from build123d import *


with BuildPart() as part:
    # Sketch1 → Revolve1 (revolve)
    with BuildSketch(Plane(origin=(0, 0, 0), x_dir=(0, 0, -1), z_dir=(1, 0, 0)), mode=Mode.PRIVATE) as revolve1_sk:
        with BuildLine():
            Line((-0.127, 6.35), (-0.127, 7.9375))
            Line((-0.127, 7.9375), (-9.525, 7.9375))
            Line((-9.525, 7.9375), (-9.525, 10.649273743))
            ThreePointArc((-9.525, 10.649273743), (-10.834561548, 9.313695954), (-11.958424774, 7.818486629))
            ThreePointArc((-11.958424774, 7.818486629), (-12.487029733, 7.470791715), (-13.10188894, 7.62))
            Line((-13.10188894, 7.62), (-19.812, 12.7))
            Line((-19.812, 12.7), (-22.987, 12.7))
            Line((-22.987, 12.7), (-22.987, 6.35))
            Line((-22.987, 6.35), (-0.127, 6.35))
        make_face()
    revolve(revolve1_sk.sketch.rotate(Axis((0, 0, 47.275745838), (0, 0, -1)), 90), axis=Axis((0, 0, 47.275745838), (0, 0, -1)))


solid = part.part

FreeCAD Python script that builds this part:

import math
import FreeCAD as App
import Part
import Sketcher
from FreeCAD import Vector
Q = App.Units.Quantity

doc = App.newDocument("Part")
body = doc.addObject("PartDesign::Body", "Body")

# Sketch on YZ plane
sketch1 = doc.addObject("Sketcher::SketchObject", "Sketch")
body.addObject(sketch1)
sketch1.AttachmentSupport = (doc.YZ_Plane, [""])
sketch1.MapMode = "FlatFace"
sketch1.addGeometry(Part.LineSegment(Vector(6.3, 0.1, 0), Vector(7.9, 0.1, 0)), False)
sketch1.addGeometry(Part.LineSegment(Vector(7.9, 0.1, 0), Vector(7.9, 9.5, 0)), False)
sketch1.addGeometry(Part.LineSegment(Vector(7.9, 9.5, 0), Vector(10.6, 9.5, 0)), False)
sketch1.addGeometry(Part.ArcOfCircle(Part.Circle(Vector(0, 0, 0), Vector(0, 0, 1), 14.3), math.radians(41.81), math.radians(56.82)), False)
sketch1.addGeometry(Part.ArcOfCircle(Part.Circle(Vector(8.3, 12.6, 0), Vector(0, 0, 1), 0.8), math.radians(143), math.radians(237)), False)
sketch1.addGeometry(Part.LineSegment(Vector(7.6, 13.1, 0), Vector(12.7, 19.8, 0)), False)
sketch1.addGeometry(Part.LineSegment(Vector(12.7, 19.8, 0), Vector(12.7, 23, 0)), False)
sketch1.addGeometry(Part.LineSegment(Vector(12.7, 23, 0), Vector(6.3, 23, 0)), False)
sketch1.addGeometry(Part.LineSegment(Vector(6.3, 23, 0), Vector(6.3, 0.1, 0)), False)
sketch1.addConstraint(Sketcher.Constraint("Coincident", 0, 2, 1, 1))
sketch1.addConstraint(Sketcher.Constraint("Coincident", 1, 2, 2, 1))
sketch1.addConstraint(Sketcher.Constraint("Coincident", 2, 2, 3, 1))
sketch1.addConstraint(Sketcher.Constraint("Tangent", 3, 2, 4, 2))
sketch1.addConstraint(Sketcher.Constraint("Tangent", 4, 1, 5, 1))
sketch1.addConstraint(Sketcher.Constraint("Coincident", 5, 2, 6, 1))
sketch1.addConstraint(Sketcher.Constraint("Coincident", 6, 2, 7, 1))
sketch1.addConstraint(Sketcher.Constraint("Coincident", 7, 2, 8, 1))
sketch1.addConstraint(Sketcher.Constraint("Coincident", 8, 2, 0, 1))
sketch1.addConstraint(Sketcher.Constraint("Horizontal", 0))
sketch1.addConstraint(Sketcher.Constraint("Vertical", 1))
sketch1.addConstraint(Sketcher.Constraint("Horizontal", 2))
sketch1.addConstraint(Sketcher.Constraint("Vertical", 6))
sketch1.addConstraint(Sketcher.Constraint("Horizontal", 7))
sketch1.addConstraint(Sketcher.Constraint("Vertical", 8))
sketch1.addConstraint(Sketcher.Constraint("Coincident", 3, 3, -1, 1))
sketch1.addConstraint(Sketcher.Constraint("DistanceY", 8, 2, 8, 1, Q("0.9 in")))
sketch1.addConstraint(Sketcher.Constraint("Radius", 3, Q("0.5625 in")))
sketch1.addConstraint(Sketcher.Constraint("Radius", 4, Q("0.03125 in")))
sketch1.addConstraint(Sketcher.Constraint("DistanceX", 7, 2, 7, 1, Q("0.25 in")))
sketch1.addConstraint(Sketcher.Constraint("DistanceY", 1, 1, 1, 2, Q("0.37 in")))
sketch1.addConstraint(Sketcher.Constraint("DistanceX", -1, 1, 4, 1, Q("0.3 in")))
sketch1.addConstraint(Sketcher.Constraint("DistanceX", -1, 1, 5, 2, Q("0.5 in")))
sketch1.addConstraint(Sketcher.Constraint("DistanceX", 0, 1, 0, 2, Q("0.0625 in")))
sketch1.addConstraint(Sketcher.Constraint("DistanceY", 6, 1, 6, 2, Q("0.125 in")))
sketch1.addConstraint(Sketcher.Constraint("DistanceY", -1, 1, 5, 2, Q("0.78 in")))
revolution = doc.addObject("PartDesign::Revolution", "Revolution")
body.addObject(revolution)
revolution.Profile = sketch1
revolution.ReferenceAxis = (sketch1, ["V_Axis"])
revolution.Angle = 360

doc.recompute()
